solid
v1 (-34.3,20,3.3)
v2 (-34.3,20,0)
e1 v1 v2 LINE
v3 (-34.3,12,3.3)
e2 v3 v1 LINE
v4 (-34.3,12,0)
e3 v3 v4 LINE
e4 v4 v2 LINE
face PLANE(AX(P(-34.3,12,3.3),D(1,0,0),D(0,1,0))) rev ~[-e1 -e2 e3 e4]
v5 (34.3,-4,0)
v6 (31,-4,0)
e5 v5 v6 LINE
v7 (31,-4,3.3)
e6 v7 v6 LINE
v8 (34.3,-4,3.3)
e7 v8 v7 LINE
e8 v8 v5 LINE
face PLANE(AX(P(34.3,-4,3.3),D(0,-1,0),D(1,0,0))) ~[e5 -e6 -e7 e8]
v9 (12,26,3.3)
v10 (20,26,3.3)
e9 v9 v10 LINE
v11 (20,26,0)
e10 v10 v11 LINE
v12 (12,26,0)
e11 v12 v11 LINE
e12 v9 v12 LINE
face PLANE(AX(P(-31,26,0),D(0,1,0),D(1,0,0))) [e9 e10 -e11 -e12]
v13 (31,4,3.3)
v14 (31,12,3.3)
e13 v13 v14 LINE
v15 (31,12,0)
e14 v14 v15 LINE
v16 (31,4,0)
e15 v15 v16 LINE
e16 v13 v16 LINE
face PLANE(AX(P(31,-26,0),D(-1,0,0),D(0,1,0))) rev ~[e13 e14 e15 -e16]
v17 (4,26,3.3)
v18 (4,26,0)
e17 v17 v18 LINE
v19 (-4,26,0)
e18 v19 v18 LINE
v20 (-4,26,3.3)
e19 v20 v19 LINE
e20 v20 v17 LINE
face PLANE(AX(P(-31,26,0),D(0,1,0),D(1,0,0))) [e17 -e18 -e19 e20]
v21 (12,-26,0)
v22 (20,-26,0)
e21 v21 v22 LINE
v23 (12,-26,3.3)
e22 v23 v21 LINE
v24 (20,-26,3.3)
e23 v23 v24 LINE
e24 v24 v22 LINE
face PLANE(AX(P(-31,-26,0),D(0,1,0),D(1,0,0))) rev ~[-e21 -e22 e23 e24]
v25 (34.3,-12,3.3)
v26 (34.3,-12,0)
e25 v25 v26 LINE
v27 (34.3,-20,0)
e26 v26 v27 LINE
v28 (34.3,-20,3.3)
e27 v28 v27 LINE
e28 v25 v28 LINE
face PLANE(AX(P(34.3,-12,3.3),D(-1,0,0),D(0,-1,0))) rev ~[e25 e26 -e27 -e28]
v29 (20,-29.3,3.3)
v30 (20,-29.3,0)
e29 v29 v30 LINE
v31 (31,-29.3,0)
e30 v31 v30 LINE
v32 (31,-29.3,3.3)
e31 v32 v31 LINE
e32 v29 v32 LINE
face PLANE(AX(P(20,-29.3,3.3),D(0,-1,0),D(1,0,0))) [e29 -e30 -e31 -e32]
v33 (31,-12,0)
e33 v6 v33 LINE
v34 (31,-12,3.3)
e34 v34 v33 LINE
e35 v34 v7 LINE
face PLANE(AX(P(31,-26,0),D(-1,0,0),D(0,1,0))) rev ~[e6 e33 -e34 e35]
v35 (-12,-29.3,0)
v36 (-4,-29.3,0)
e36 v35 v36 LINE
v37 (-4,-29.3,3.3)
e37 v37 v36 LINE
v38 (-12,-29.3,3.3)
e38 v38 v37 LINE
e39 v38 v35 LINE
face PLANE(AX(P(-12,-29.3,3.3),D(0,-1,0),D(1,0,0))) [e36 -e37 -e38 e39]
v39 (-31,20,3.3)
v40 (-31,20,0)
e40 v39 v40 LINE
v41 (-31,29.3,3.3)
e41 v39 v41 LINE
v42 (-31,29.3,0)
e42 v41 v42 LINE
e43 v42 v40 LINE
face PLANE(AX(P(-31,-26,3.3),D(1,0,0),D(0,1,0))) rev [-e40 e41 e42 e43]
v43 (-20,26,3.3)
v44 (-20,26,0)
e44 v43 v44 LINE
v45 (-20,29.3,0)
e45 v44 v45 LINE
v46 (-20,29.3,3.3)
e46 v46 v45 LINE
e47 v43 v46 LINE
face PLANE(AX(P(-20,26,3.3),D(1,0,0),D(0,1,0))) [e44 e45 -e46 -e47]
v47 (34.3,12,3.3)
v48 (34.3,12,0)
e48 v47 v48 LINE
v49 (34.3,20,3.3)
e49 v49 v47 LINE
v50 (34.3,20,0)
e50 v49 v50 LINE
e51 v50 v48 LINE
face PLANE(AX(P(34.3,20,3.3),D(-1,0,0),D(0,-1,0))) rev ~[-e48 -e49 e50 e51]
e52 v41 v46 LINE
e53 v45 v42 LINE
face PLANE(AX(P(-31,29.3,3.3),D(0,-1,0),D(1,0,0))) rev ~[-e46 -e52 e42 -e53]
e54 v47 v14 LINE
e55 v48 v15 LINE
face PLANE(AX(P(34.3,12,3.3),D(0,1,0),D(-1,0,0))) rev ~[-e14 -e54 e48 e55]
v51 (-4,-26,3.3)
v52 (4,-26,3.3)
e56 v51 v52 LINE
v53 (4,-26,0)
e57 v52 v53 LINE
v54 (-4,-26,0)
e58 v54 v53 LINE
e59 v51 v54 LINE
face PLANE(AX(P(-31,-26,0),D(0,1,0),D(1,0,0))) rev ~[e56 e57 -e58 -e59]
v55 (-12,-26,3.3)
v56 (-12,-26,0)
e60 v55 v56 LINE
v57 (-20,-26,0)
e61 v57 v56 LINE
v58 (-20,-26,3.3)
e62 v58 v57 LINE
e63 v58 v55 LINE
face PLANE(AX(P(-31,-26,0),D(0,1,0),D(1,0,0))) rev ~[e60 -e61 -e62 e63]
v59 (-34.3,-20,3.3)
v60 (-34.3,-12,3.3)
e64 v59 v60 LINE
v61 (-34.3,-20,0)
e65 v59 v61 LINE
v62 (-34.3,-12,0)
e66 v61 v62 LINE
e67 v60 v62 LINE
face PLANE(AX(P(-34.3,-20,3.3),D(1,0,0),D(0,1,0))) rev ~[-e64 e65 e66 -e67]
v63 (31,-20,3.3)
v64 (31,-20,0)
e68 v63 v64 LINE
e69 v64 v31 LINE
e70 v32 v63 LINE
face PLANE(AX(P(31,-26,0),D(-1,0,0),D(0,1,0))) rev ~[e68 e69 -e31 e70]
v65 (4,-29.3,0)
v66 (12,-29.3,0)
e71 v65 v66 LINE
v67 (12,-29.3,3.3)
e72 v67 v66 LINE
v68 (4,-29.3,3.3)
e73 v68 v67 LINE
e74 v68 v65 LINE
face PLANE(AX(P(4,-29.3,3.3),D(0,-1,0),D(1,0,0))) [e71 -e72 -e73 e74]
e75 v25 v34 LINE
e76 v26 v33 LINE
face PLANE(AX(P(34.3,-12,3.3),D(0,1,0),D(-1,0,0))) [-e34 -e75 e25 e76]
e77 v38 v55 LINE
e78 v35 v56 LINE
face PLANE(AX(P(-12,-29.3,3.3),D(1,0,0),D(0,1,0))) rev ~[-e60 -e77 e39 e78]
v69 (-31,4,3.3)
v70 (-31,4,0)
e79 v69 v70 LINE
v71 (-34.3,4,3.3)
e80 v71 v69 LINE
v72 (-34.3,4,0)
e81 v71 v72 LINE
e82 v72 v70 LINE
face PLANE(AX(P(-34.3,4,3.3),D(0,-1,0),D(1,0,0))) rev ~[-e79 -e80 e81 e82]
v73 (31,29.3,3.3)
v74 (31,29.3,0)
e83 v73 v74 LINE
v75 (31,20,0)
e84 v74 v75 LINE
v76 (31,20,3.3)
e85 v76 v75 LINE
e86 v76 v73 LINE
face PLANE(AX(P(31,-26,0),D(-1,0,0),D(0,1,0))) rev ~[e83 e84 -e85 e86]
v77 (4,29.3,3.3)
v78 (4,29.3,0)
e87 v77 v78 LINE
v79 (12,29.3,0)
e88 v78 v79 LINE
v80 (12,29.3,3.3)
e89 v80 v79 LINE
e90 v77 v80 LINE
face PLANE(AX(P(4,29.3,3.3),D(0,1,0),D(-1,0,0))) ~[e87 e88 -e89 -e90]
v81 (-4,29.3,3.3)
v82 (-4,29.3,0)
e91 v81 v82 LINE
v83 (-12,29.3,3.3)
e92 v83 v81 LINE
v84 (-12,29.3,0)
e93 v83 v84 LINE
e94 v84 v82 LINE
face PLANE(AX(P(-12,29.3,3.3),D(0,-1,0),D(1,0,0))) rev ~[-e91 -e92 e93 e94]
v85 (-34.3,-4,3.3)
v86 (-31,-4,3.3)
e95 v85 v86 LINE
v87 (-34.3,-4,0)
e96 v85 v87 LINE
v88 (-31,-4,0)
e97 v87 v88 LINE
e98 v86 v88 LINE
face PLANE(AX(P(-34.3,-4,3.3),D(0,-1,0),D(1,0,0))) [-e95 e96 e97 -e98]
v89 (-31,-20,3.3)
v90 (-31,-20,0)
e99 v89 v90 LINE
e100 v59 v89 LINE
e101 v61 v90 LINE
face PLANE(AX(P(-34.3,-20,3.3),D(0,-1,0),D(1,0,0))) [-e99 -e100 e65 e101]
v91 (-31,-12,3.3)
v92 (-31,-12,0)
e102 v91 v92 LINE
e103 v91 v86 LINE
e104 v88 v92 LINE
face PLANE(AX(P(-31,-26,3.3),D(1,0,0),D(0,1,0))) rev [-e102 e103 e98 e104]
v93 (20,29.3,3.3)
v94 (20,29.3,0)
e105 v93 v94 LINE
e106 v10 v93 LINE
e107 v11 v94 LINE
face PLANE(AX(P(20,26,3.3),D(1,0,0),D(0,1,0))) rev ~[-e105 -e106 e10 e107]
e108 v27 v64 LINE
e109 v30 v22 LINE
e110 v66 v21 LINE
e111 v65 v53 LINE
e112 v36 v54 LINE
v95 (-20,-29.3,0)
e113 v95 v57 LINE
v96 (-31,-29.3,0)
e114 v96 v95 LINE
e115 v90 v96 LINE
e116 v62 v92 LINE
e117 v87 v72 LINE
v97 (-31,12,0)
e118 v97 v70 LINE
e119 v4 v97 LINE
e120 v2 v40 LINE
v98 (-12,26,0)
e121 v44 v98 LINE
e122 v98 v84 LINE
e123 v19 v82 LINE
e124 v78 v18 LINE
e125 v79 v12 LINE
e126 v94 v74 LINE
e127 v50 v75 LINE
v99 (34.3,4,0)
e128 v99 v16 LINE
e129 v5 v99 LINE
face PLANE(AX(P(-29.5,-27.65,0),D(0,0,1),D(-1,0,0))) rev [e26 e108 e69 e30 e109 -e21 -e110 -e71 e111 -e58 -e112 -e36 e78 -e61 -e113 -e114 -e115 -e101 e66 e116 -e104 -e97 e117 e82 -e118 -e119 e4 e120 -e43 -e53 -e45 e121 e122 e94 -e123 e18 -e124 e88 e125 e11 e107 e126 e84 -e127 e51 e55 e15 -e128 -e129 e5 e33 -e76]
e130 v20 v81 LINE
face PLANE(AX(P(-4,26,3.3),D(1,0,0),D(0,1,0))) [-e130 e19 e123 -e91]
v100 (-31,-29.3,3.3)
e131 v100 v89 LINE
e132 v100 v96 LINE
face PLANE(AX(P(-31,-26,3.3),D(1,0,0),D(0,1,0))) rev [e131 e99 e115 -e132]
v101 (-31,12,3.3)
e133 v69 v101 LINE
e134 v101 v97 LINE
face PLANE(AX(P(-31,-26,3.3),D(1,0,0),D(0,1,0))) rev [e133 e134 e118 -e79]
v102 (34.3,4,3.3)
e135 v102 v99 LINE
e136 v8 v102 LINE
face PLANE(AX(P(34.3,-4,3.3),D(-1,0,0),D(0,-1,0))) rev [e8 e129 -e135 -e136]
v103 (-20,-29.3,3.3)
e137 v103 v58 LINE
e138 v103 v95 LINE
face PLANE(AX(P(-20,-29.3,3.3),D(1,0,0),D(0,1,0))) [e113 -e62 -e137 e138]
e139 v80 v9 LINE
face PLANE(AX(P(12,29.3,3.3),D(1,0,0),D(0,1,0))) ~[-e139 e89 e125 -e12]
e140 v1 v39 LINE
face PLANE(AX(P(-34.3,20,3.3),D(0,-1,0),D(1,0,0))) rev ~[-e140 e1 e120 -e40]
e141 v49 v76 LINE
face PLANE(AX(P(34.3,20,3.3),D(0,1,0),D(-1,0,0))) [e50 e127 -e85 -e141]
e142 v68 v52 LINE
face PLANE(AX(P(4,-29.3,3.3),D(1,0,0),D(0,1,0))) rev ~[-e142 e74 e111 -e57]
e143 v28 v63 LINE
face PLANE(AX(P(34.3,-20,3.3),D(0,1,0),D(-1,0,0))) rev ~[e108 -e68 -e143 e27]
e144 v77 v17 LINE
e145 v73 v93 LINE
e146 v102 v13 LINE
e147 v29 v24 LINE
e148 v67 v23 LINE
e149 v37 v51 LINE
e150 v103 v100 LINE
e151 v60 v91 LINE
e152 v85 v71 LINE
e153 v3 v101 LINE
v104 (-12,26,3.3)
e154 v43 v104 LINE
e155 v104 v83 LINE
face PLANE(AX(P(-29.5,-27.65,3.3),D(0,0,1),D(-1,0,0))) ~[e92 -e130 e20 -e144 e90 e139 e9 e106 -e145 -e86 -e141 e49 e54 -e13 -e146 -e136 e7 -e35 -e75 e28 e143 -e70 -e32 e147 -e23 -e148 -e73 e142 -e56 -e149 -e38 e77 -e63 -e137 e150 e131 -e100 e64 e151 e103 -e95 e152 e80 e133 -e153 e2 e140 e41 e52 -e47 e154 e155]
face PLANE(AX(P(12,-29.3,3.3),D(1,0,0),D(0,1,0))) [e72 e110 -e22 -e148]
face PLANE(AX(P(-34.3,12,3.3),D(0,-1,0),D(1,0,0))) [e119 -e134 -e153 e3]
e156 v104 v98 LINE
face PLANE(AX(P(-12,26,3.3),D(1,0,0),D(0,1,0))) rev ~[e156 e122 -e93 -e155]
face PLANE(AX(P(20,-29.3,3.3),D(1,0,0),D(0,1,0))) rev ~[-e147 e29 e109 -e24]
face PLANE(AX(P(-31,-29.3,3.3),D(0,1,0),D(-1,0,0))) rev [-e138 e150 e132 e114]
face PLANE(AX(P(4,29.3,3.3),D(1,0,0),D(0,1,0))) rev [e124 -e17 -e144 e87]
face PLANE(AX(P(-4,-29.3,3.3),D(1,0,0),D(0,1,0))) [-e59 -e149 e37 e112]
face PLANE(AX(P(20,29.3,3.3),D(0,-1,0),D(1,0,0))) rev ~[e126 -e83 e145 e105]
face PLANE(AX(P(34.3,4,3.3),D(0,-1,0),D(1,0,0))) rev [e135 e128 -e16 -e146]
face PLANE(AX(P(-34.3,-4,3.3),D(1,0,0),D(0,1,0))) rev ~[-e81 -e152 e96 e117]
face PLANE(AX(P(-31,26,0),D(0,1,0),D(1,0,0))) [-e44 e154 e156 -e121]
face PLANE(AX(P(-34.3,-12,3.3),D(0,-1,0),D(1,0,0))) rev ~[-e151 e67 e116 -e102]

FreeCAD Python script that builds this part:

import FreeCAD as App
import Part
import Sketcher
from FreeCAD import Vector


def add_polygon(sketch, points):
    """Adds a closed chain of lines whose ends are joined by coincident constraints."""
    first, n = sketch.GeometryCount, len(points)
    for a, b in zip(points, points[1:] + points[:1]):
        sketch.addGeometry(Part.LineSegment(App.Vector(*a, 0), App.Vector(*b, 0)), False)
    for i in range(n):
        sketch.addConstraint(Sketcher.Constraint("Coincident", first + i, 2, first + (i + 1) % n, 1))

doc = App.newDocument("Part")
body = doc.addObject("PartDesign::Body", "Body")

sketch1 = body.newObject("Sketcher::SketchObject", "Sketch")
sketch1.AttachmentSupport = (doc.getObject("XY_Plane"), [""])
sketch1.MapMode = "FlatFace"
add_polygon(sketch1, [(-31, 26), (-31, -26), (31, -26), (31, 26)])
sketch1.addConstraint(Sketcher.Constraint("Vertical", 0))
sketch1.addConstraint(Sketcher.Constraint("Horizontal", 1))
sketch1.addConstraint(Sketcher.Constraint("Vertical", 2))
sketch1.addConstraint(Sketcher.Constraint("Horizontal", 3))
sketch1.addConstraint(Sketcher.Constraint("Symmetric", 0, 2, 2, 2, -1, 1))
sketch1.addConstraint(Sketcher.Constraint("DistanceX", 1, 1, 1, 2, 62.0))
sketch1.addConstraint(Sketcher.Constraint("DistanceY", 0, 2, 0, 1, 52.0))
pad1 = body.newObject("PartDesign::Pad", "Pad")
pad1.Profile = sketch1
pad1.Length = 3.3

sketch2 = body.newObject("Sketcher::SketchObject", "Sketch001")
sketch2.AttachmentSupport = (doc.getObject("XY_Plane"), [""])
sketch2.MapMode = "FlatFace"
sketch2.AttachmentOffset = App.Placement(Vector(0, 0, 3.3), App.Rotation())
add_polygon(sketch2, [(4, -26), (4, -29.3), (12, -29.3), (12, -26)])
sketch2.addConstraint(Sketcher.Constraint("Vertical", 0))
sketch2.addConstraint(Sketcher.Constraint("Horizontal", 1))
sketch2.addConstraint(Sketcher.Constraint("Vertical", 2))
sketch2.addConstraint(Sketcher.Constraint("Horizontal", 3))
sketch2.addConstraint(Sketcher.Constraint("DistanceX", 1, 1, 1, 2, 8.0))
sketch2.addConstraint(Sketcher.Constraint("DistanceY", 0, 2, 0, 1, 3.3))
sketch2.addConstraint(Sketcher.Constraint("DistanceX", -1, 1, 0, 2, 4.0))
sketch2.addConstraint(Sketcher.Constraint("DistanceY", 2, 2, -1, 1, 26.0))
pad2 = body.newObject("PartDesign::Pad", "Pad001")
pad2.Profile = sketch2
pad2.Length = 3.3
pad2.Reversed = True
doc.recompute()

linearpattern = body.newObject("PartDesign::LinearPattern", "LinearPattern")
linearpattern.Originals = [pad2]
linearpattern.Direction = (doc.getObject("X_Axis"), [""])
linearpattern.Mode = "offset"
linearpattern.Offset = 16
linearpattern.Occurrences = 2
body.Tip = linearpattern
doc.recompute()

linearpattern2 = body.newObject("PartDesign::LinearPattern", "LinearPattern001")
linearpattern2.Originals = [pad2]
linearpattern2.Direction = (doc.getObject("X_Axis"), [""])
linearpattern2.Mode = "offset"
linearpattern2.Offset = 16
linearpattern2.Occurrences = 3
linearpattern2.Reversed = True
body.Tip = linearpattern2
doc.recompute()

mirrored = body.newObject("PartDesign::Mirrored", "Mirrored")
mirrored.Originals = [pad2]
mirrored.MirrorPlane = (doc.getObject("XZ_Plane"), [""])
body.Tip = mirrored

sketch3 = body.newObject("Sketcher::SketchObject", "Sketch002")
sketch3.AttachmentSupport = (doc.getObject("XY_Plane"), [""])
sketch3.MapMode = "FlatFace"
sketch3.AttachmentOffset = App.Placement(Vector(0, 0, 3.3), App.Rotation())
add_polygon(sketch3, [(20, 29.3), (20, 26), (28, 26), (28, 29.3)])
sketch3.addConstraint(Sketcher.Constraint("Vertical", 0))
sketch3.addConstraint(Sketcher.Constraint("Horizontal", 1))
sketch3.addConstraint(Sketcher.Constraint("Vertical", 2))
sketch3.addConstraint(Sketcher.Constraint("Horizontal", 3))
sketch3.addConstraint(Sketcher.Constraint("DistanceX", 1, 1, 1, 2, 8.0))
sketch3.addConstraint(Sketcher.Constraint("DistanceY", 0, 2, 0, 1, 3.3))
sketch3.addConstraint(Sketcher.Constraint("DistanceX", -1, 1, 0, 2, 20.0))
sketch3.addConstraint(Sketcher.Constraint("DistanceY", -1, 1, 0, 2, 26.0))
pad3 = body.newObject("PartDesign::Pad", "Pad002")
pad3.Profile = sketch3
pad3.Length = 3.3
pad3.Reversed = True

sketch4 = body.newObject("Sketcher::SketchObject", "Sketch003")
sketch4.AttachmentSupport = (doc.getObject("XY_Plane"), [""])
sketch4.MapMode = "FlatFace"
sketch4.AttachmentOffset = App.Placement(Vector(0, 0, 3.3), App.Rotation())
add_polygon(sketch4, [(-12, 29.3), (-12, 26), (-4, 26), (-4, 29.3)])
sketch4.addConstraint(Sketcher.Constraint("Vertical", 0))
sketch4.addConstraint(Sketcher.Constraint("Horizontal", 1))
sketch4.addConstraint(Sketcher.Constraint("Vertical", 2))
sketch4.addConstraint(Sketcher.Constraint("Horizontal", 3))
sketch4.addConstraint(Sketcher.Constraint("DistanceX", 1, 1, 1, 2, 8.0))
sketch4.addConstraint(Sketcher.Constraint("DistanceY", 0, 2, 0, 1, 3.3))
sketch4.addConstraint(Sketcher.Constraint("DistanceX", 0, 2, -1, 1, 12.0))
sketch4.addConstraint(Sketcher.Constraint("DistanceY", -1, 1, 0, 2, 26.0))
pad4 = body.newObject("PartDesign::Pad", "Pad003")
pad4.Profile = sketch4
pad4.Length = 3.3
pad4.Reversed = True

sketch5 = body.newObject("Sketcher::SketchObject", "Sketch004")
sketch5.AttachmentSupport = (doc.getObject("XY_Plane"), [""])
sketch5.MapMode = "FlatFace"
sketch5.AttachmentOffset = App.Placement(Vector(0, 0, 3.3), App.Rotation())
add_polygon(sketch5, [(-28, 29.3), (-28, 26), (-20, 26), (-20, 29.3)])
sketch5.addConstraint(Sketcher.Constraint("Vertical", 0))
sketch5.addConstraint(Sketcher.Constraint("Horizontal", 1))
sketch5.addConstraint(Sketcher.Constraint("Vertical", 2))
sketch5.addConstraint(Sketcher.Constraint("Horizontal", 3))
sketch5.addConstraint(Sketcher.Constraint("DistanceX", 1, 1, 1, 2, 8.0))
sketch5.addConstraint(Sketcher.Constraint("DistanceY", 0, 2, 0, 1, 3.3))
sketch5.addConstraint(Sketcher.Constraint("DistanceX", 0, 2, -1, 1, 28.0))
sketch5.addConstraint(Sketcher.Constraint("DistanceY", -1, 1, 0, 2, 26.0))
pad5 = body.newObject("PartDesign::Pad", "Pad004")
pad5.Profile = sketch5
pad5.Length = 3.3
pad5.Reversed = True

sketch6 = body.newObject("Sketcher::SketchObject", "Sketch005")
sketch6.AttachmentSupport = (doc.getObject("XY_Plane"), [""])
sketch6.MapMode = "FlatFace"
sketch6.AttachmentOffset = App.Placement(Vector(0, 0, 3.3), App.Rotation())
add_polygon(sketch6, [(-31, 29.3), (-31, 26), (-28, 26), (-28, 29.3)])
add_polygon(sketch6, [(28, 29.3), (28, 26), (31, 26), (31, 29.3)])
sketch6.addConstraint(Sketcher.Constraint("Vertical", 0))
sketch6.addConstraint(Sketcher.Constraint("Horizontal", 1))
sketch6.addConstraint(Sketcher.Constraint("Vertical", 2))
sketch6.addConstraint(Sketcher.Constraint("Horizontal", 3))
sketch6.addConstraint(Sketcher.Constraint("Vertical", 4))
sketch6.addConstraint(Sketcher.Constraint("Horizontal", 5))
sketch6.addConstraint(Sketcher.Constraint("Vertical", 6))
sketch6.addConstraint(Sketcher.Constraint("Horizontal", 7))
sketch6.addConstraint(Sketcher.Constraint("Symmetric", 1, 2, 4, 2, -2))
sketch6.addConstraint(Sketcher.Constraint("Symmetric", 3, 2, 6, 2, -2))
sketch6.addConstraint(Sketcher.Constraint("DistanceX", 1, 1, 1, 2, 3.0))
sketch6.addConstraint(Sketcher.Constraint("DistanceY", 0, 2, 0, 1, 3.3))
sketch6.addConstraint(Sketcher.Constraint("DistanceX", 0, 2, -1, 1, 31.0))
sketch6.addConstraint(Sketcher.Constraint("DistanceY", -1, 1, 0, 2, 26.0))
pad6 = body.newObject("PartDesign::Pad", "Pad005")
pad6.Profile = sketch6
pad6.Length = 3.3
pad6.Reversed = True
doc.recompute()

mirrored2 = body.newObject("PartDesign::Mirrored", "Mirrored001")
mirrored2.Originals = [pad6]
mirrored2.MirrorPlane = (doc.getObject("XZ_Plane"), [""])
body.Tip = mirrored2

sketch7 = body.newObject("Sketcher::SketchObject", "Sketch006")
sketch7.AttachmentSupport = (doc.getObject("XY_Plane"), [""])
sketch7.MapMode = "FlatFace"
sketch7.AttachmentOffset = App.Placement(Vector(0, 0, 3.3), App.Rotation())
add_polygon(sketch7, [(-34.3, 4), (-34.3, -4), (-31, -4), (-31, 4)])
sketch7.addConstraint(Sketcher.Constraint("Vertical", 0))
sketch7.addConstraint(Sketcher.Constraint("Horizontal", 1))
sketch7.addConstraint(Sketcher.Constraint("Vertical", 2))
sketch7.addConstraint(Sketcher.Constraint("Horizontal", 3))
sketch7.addConstraint(Sketcher.Constraint("DistanceY", 0, 2, 0, 1, 8.0))
sketch7.addConstraint(Sketcher.Constraint("DistanceX", 1, 1, 1, 2, 3.3))
sketch7.addConstraint(Sketcher.Constraint("DistanceY", 0, 2, -1, 1, 4.0))
sketch7.addConstraint(Sketcher.Constraint("DistanceX", 1, 2, -1, 1, 31.0))
pad7 = body.newObject("PartDesign::Pad", "Pad006")
pad7.Profile = sketch7
pad7.Length = 3.3
pad7.Reversed = True
doc.recompute()

linearpattern3 = body.newObject("PartDesign::LinearPattern", "LinearPattern002")
linearpattern3.Originals = [pad7]
linearpattern3.Direction = (doc.getObject("Y_Axis"), [""])
linearpattern3.Mode = "offset"
linearpattern3.Offset = 16
linearpattern3.Occurrences = 2
body.Tip = linearpattern3
doc.recompute()

linearpattern4 = body.newObject("PartDesign::LinearPattern", "LinearPattern003")
linearpattern4.Originals = [pad7]
linearpattern4.Direction = (doc.getObject("Y_Axis"), [""])
linearpattern4.Mode = "offset"
linearpattern4.Offset = 16
linearpattern4.Occurrences = 2
linearpattern4.Reversed = True
body.Tip = linearpattern4
doc.recompute()

mirrored3 = body.newObject("PartDesign::Mirrored", "Mirrored002")
mirrored3.Originals = [pad7]
mirrored3.MirrorPlane = (doc.getObject("YZ_Plane"), [""])
body.Tip = mirrored3

sketch8 = body.newObject("Sketcher::SketchObject", "Sketch007")
sketch8.AttachmentSupport = (doc.getObject("XY_Plane"), [""])
sketch8.MapMode = "FlatFace"
sketch8.AttachmentOffset = App.Placement(Vector(0, 0, 3.3), App.Rotation())
add_polygon(sketch8, [(34.3, 12), (34.3, 20), (31, 20), (31, 12)])
sketch8.addConstraint(Sketcher.Constraint("Vertical", 0))
sketch8.addConstraint(Sketcher.Constraint("Horizontal", 1))
sketch8.addConstraint(Sketcher.Constraint("Vertical", 2))
sketch8.addConstraint(Sketcher.Constraint("Horizontal", 3))
sketch8.addConstraint(Sketcher.Constraint("DistanceY", 0, 1, 0, 2, 8.0))
sketch8.addConstraint(Sketcher.Constraint("DistanceX", 1, 2, 1, 1, 3.3))
sketch8.addConstraint(Sketcher.Constraint("DistanceY", -1, 1, 0, 2, 20.0))
sketch8.addConstraint(Sketcher.Constraint("DistanceX", -1, 1, 1, 2, 31.0))
pad8 = body.newObject("PartDesign::Pad", "Pad007")
pad8.Profile = sketch8
pad8.Length = 3.3
pad8.Reversed = True

sketch9 = body.newObject("Sketcher::SketchObject", "Sketch008")
sketch9.AttachmentSupport = (doc.getObject("XY_Plane"), [""])
sketch9.MapMode = "FlatFace"
sketch9.AttachmentOffset = App.Placement(Vector(0, 0, 3.3), App.Rotation())
add_polygon(sketch9, [(34.3, -20), (34.3, -12), (31, -12), (31, -20)])
sketch9.addConstraint(Sketcher.Constraint("Vertical", 0))
sketch9.addConstraint(Sketcher.Constraint("Horizontal", 1))
sketch9.addConstraint(Sketcher.Constraint("Vertical", 2))
sketch9.addConstraint(Sketcher.Constraint("Horizontal", 3))
sketch9.addConstraint(Sketcher.Constraint("DistanceY", 0, 1, 0, 2, 8.0))
sketch9.addConstraint(Sketcher.Constraint("DistanceX", 1, 2, 1, 1, 3.3))
sketch9.addConstraint(Sketcher.Constraint("DistanceY", 0, 2, -1, 1, 12.0))
sketch9.addConstraint(Sketcher.Constraint("DistanceX", -1, 1, 1, 2, 31.0))
pad9 = body.newObject("PartDesign::Pad", "Pad008")
pad9.Profile = sketch9
pad9.Length = 3.3
pad9.Reversed = True

doc.recompute()
